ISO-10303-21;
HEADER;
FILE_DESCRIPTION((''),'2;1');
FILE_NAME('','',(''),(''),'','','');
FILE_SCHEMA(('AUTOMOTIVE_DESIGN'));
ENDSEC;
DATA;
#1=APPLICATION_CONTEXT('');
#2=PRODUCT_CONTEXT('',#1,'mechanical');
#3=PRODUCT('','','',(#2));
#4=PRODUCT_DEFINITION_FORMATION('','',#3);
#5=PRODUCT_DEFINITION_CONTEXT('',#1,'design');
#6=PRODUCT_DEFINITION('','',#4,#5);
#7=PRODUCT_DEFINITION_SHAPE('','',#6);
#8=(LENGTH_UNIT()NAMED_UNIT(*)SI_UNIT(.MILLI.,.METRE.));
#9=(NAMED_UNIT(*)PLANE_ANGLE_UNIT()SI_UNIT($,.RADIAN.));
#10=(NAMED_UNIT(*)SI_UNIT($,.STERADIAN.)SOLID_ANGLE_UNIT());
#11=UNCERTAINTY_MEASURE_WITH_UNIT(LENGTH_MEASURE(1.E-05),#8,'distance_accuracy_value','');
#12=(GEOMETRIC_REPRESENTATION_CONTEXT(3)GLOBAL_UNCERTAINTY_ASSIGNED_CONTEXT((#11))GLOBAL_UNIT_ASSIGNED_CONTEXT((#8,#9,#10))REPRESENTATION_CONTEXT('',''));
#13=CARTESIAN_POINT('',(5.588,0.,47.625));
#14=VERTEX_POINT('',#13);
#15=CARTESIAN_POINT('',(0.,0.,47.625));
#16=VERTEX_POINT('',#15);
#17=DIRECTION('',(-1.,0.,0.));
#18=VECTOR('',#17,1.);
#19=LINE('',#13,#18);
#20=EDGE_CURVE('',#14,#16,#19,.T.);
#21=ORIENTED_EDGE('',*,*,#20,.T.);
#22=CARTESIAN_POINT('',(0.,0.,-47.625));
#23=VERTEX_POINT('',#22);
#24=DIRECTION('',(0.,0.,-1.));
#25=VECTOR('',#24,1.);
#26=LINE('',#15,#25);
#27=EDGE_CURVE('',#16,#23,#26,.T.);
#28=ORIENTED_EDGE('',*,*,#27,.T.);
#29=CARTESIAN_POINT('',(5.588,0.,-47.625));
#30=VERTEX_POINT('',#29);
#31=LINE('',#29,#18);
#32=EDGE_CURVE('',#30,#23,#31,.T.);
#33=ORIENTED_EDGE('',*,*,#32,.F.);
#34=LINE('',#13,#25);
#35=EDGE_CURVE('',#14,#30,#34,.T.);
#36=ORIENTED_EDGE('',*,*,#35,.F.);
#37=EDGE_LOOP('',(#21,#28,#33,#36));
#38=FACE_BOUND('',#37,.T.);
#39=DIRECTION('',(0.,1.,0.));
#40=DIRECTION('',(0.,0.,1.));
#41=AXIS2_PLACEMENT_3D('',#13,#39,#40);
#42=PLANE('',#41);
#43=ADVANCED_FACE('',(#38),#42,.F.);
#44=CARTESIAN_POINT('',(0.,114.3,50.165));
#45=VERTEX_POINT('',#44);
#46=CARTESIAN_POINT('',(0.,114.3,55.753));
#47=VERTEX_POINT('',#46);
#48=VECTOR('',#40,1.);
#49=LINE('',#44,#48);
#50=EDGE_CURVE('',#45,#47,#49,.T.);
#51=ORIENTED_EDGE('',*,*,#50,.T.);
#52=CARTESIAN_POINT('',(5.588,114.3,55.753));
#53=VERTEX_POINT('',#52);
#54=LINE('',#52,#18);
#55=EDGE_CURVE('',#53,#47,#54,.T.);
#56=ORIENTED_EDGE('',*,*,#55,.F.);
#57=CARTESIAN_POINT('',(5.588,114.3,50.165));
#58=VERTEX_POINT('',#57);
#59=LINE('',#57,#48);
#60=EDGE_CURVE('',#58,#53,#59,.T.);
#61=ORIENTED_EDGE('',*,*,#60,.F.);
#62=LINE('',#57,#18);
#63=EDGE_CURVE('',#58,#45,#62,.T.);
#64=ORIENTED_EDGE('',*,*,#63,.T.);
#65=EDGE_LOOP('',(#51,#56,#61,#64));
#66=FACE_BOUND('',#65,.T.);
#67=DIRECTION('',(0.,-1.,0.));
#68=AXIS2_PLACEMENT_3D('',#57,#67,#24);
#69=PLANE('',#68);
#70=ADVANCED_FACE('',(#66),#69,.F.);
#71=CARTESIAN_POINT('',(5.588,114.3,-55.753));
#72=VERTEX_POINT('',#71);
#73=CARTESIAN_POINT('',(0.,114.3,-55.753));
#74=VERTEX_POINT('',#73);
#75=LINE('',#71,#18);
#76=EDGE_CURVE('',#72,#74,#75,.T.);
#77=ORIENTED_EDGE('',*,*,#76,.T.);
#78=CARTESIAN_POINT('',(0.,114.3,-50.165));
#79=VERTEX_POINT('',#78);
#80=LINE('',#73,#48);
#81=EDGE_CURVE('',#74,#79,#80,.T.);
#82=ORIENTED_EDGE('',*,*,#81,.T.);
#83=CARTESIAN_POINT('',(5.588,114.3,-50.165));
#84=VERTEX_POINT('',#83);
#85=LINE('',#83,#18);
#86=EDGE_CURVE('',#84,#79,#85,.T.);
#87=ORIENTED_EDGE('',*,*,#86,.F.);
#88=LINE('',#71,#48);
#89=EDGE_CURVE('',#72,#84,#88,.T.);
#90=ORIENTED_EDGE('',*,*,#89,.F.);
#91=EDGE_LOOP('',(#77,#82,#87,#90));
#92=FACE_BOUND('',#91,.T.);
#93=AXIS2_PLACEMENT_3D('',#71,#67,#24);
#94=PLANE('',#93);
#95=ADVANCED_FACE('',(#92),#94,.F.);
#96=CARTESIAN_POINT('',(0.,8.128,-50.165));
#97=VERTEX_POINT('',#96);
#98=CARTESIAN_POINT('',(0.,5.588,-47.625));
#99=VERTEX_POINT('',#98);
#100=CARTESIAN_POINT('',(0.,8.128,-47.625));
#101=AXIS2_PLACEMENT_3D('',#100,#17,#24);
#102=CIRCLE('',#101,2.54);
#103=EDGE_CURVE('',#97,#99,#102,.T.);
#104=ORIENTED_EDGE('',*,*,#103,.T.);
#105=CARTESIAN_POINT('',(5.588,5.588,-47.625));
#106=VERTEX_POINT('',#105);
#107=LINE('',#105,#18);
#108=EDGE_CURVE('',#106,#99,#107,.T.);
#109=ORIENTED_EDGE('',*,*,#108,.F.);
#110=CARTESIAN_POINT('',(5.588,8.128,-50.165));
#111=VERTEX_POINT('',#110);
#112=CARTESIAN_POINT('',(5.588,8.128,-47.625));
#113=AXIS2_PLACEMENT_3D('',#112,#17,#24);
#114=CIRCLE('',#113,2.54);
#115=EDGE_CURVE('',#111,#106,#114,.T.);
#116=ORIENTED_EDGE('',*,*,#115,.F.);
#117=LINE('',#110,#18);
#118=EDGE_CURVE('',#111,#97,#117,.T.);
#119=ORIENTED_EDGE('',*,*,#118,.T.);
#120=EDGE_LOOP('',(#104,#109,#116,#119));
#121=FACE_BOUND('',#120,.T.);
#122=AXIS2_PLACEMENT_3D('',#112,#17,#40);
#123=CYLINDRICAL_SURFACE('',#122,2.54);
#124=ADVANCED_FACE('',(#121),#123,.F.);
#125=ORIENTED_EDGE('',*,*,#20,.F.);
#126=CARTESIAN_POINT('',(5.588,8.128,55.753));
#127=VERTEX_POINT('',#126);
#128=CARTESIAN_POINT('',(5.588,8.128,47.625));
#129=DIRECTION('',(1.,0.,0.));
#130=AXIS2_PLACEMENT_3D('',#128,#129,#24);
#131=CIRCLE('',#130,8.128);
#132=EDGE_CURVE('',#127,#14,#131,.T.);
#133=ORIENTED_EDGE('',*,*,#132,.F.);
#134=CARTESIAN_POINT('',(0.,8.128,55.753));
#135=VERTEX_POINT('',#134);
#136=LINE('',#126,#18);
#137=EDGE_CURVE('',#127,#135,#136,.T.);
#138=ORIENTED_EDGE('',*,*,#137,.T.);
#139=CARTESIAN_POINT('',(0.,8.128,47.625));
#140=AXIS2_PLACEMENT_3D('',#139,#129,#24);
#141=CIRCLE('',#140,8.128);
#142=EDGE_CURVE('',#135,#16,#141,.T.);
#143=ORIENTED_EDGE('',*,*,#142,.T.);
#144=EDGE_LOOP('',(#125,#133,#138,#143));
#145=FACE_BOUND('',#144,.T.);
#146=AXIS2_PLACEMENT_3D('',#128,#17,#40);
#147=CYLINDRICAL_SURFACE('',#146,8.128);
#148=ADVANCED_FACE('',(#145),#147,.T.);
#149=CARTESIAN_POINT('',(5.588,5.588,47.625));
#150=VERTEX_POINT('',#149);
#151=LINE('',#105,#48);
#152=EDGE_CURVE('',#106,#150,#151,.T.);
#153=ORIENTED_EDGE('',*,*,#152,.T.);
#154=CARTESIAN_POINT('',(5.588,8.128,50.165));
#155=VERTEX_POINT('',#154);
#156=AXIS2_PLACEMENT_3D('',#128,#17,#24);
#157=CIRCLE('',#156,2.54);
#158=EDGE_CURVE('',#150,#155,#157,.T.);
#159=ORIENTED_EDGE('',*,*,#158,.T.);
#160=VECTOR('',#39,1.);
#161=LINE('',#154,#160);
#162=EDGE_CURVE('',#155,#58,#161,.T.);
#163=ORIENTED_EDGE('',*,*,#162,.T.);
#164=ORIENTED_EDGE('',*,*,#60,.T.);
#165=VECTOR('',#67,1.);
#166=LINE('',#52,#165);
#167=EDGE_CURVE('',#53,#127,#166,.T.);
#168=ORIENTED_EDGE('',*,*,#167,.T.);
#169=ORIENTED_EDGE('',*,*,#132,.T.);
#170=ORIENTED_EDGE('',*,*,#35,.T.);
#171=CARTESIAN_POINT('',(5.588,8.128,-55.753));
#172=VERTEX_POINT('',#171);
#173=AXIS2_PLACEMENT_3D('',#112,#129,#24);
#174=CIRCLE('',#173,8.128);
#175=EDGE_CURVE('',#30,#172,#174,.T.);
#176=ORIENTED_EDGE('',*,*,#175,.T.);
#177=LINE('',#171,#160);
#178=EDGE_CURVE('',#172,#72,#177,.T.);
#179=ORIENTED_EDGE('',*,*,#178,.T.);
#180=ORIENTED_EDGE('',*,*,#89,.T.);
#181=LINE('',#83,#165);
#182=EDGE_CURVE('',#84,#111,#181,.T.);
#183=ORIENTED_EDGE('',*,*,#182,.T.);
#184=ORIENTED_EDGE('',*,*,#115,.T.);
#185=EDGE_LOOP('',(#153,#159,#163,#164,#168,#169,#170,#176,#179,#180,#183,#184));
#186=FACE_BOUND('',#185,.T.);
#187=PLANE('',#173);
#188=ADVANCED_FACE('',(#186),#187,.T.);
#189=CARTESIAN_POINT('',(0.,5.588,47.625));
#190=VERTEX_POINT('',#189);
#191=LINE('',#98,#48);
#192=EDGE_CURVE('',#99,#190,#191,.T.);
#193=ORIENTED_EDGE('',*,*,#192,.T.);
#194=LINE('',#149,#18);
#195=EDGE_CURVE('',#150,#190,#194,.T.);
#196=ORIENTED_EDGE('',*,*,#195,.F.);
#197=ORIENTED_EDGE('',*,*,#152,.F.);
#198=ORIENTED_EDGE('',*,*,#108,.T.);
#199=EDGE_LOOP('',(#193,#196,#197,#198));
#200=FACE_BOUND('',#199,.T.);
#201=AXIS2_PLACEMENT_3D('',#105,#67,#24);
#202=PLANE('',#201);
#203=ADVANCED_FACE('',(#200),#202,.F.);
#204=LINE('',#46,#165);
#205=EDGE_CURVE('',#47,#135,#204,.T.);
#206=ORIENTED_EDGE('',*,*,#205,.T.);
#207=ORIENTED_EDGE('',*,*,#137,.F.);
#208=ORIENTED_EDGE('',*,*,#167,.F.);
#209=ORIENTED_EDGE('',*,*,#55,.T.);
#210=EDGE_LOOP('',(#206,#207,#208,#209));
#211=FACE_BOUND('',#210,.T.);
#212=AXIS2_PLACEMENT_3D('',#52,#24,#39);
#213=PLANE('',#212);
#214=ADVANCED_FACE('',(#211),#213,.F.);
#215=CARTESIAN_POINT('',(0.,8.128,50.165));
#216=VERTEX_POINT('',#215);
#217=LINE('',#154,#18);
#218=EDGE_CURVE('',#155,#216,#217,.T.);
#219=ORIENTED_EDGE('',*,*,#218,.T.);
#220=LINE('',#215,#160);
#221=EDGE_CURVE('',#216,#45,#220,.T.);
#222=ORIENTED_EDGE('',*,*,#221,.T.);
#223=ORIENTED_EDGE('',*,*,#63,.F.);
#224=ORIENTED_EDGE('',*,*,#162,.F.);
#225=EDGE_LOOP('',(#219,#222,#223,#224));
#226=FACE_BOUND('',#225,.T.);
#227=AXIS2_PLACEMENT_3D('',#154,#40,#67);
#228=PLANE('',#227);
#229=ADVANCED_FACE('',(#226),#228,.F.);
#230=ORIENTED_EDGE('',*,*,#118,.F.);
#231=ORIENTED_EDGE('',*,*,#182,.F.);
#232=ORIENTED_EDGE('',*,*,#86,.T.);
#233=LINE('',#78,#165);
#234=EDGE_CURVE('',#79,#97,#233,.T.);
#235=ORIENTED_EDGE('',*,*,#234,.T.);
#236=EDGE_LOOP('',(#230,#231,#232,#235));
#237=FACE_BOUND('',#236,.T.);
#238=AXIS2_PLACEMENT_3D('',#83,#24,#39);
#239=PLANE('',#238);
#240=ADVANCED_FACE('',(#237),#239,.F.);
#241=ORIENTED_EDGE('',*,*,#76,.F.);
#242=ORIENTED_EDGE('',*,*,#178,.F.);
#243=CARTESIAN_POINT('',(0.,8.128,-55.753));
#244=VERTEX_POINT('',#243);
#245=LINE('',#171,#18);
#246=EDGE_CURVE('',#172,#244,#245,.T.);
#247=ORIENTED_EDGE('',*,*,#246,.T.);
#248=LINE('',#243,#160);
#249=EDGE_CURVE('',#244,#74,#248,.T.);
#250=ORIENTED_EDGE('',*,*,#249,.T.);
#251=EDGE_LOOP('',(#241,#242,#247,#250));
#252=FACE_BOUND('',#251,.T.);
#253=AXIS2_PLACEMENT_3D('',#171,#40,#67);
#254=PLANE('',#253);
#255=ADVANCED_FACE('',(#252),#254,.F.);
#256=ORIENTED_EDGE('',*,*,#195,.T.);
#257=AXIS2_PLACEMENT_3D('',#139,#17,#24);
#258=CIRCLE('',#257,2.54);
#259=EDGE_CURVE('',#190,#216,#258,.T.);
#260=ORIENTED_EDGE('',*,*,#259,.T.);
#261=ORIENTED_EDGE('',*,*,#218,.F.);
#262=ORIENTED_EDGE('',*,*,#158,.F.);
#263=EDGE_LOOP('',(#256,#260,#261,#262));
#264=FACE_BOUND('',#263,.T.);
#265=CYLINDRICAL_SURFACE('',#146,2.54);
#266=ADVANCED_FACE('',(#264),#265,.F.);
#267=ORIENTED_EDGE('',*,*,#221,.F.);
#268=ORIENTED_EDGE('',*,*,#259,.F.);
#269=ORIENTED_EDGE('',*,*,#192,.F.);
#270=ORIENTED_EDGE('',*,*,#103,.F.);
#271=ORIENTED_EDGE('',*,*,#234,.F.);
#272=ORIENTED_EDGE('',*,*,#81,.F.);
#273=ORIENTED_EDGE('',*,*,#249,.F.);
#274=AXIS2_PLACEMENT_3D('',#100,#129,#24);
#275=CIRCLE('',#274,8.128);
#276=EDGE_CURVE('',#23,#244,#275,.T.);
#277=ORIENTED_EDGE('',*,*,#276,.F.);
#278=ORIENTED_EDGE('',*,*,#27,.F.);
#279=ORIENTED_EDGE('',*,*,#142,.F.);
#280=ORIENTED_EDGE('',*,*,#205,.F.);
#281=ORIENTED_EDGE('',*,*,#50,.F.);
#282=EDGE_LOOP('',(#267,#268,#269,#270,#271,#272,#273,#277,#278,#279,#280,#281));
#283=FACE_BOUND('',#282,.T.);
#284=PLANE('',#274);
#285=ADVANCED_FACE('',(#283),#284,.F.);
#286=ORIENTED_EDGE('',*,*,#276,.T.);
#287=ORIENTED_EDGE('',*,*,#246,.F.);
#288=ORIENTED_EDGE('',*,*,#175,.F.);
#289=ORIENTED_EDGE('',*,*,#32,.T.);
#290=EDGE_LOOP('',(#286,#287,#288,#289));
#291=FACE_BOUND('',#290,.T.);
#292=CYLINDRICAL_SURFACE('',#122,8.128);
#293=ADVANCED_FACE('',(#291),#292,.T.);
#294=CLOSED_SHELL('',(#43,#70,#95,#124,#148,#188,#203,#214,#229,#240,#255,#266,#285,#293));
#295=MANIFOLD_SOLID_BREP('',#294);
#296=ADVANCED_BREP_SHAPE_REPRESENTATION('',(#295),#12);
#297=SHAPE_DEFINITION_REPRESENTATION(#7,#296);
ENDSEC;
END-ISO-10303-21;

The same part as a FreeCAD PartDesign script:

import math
import FreeCAD as App
import Part
import Sketcher

V = App.Vector
Q = App.Units.Quantity

doc = App.newDocument("Part")
body = doc.addObject("PartDesign::Body", "Body")

# Sketch on YZ plane
sketch1 = doc.addObject("Sketcher::SketchObject", "Sketch")
body.addObject(sketch1)
sketch1.AttachmentSupport = (doc.YZ_Plane, [""])
sketch1.MapMode = "FlatFace"
sketch1.addGeometry(Part.LineSegment(V(0, 47.6, 0), V(0, -47.6, 0)), False)
sketch1.addGeometry(Part.ArcOfCircle(Part.Circle(V(8.1, -47.6, 0), V(0, 0, 1), 8.1), math.radians(-180), math.radians(-90)), False)
sketch1.addGeometry(Part.LineSegment(V(8.1, -55.8, 0), V(114.3, -55.8, 0)), False)
sketch1.addGeometry(Part.LineSegment(V(114.3, -55.8, 0), V(114.3, -50.2, 0)), False)
sketch1.addGeometry(Part.LineSegment(V(114.3, -50.2, 0), V(8.1, -50.2, 0)), False)
sketch1.addGeometry(Part.ArcOfCircle(Part.Circle(V(8.1, -47.6, 0), V(0, 0, 1), 2.5), math.radians(-180), math.radians(-90)), False)
sketch1.addGeometry(Part.LineSegment(V(5.6, -47.6, 0), V(5.6, 47.6, 0)), False)
sketch1.addGeometry(Part.ArcOfCircle(Part.Circle(V(8.1, 47.6, 0), V(0, 0, 1), 2.5), math.radians(90), math.radians(180)), False)
sketch1.addGeometry(Part.LineSegment(V(8.1, 50.2, 0), V(114.3, 50.2, 0)), False)
sketch1.addGeometry(Part.LineSegment(V(114.3, 50.2, 0), V(114.3, 55.8, 0)), False)
sketch1.addGeometry(Part.LineSegment(V(114.3, 55.8, 0), V(8.1, 55.8, 0)), False)
sketch1.addGeometry(Part.ArcOfCircle(Part.Circle(V(8.1, 47.6, 0), V(0, 0, 1), 8.1), math.radians(90), math.radians(180)), False)
sketch1.addConstraint(Sketcher.Constraint("Tangent", 0, 2, 1, 1))
sketch1.addConstraint(Sketcher.Constraint("Tangent", 1, 2, 2, 1))
sketch1.addConstraint(Sketcher.Constraint("Coincident", 2, 2, 3, 1))
sketch1.addConstraint(Sketcher.Constraint("Coincident", 3, 2, 4, 1))
sketch1.addConstraint(Sketcher.Constraint("Tangent", 4, 2, 5, 2))
sketch1.addConstraint(Sketcher.Constraint("Tangent", 5, 1, 6, 1))
sketch1.addConstraint(Sketcher.Constraint("Tangent", 6, 2, 7, 2))
sketch1.addConstraint(Sketcher.Constraint("Tangent", 7, 1, 8, 1))
sketch1.addConstraint(Sketcher.Constraint("Coincident", 8, 2, 9, 1))
sketch1.addConstraint(Sketcher.Constraint("Coincident", 9, 2, 10, 1))
sketch1.addConstraint(Sketcher.Constraint("Tangent", 10, 2, 11, 1))
sketch1.addConstraint(Sketcher.Constraint("Tangent", 11, 2, 0, 1))
sketch1.addConstraint(Sketcher.Constraint("Vertical", 0))
sketch1.addConstraint(Sketcher.Constraint("Horizontal", 2))
sketch1.addConstraint(Sketcher.Constraint("Vertical", 3))
sketch1.addConstraint(Sketcher.Constraint("Horizontal", 4))
sketch1.addConstraint(Sketcher.Constraint("Vertical", 6))
sketch1.addConstraint(Sketcher.Constraint("Horizontal", 8))
sketch1.addConstraint(Sketcher.Constraint("Vertical", 9))
sketch1.addConstraint(Sketcher.Constraint("Horizontal", 10))
sketch1.addConstraint(Sketcher.Constraint("Coincident", 5, 3, 1, 3))
sketch1.addConstraint(Sketcher.Constraint("Coincident", 11, 3, 7, 3))
sketch1.addConstraint(Sketcher.Constraint("Equal", 5, 7))
sketch1.addConstraint(Sketcher.Constraint("Symmetric", 0, 2, 11, 2, -1, 1))
sketch1.addConstraint(Sketcher.Constraint("Vertical", 3, 2, 8, 2))
sketch1.addConstraint(Sketcher.Constraint("Radius", 5, Q("0.1 in")))
sketch1.addConstraint(Sketcher.Constraint("Radius", 1, Q("0.32 in")))
sketch1.addConstraint(Sketcher.Constraint("DistanceX", 2, 1, 2, 2, Q("4.18 in")))
sketch1.addConstraint(Sketcher.Constraint("DistanceY", 0, 2, 0, 1, Q("3.75 in")))
pad1 = doc.addObject("PartDesign::Pad", "Pad")
body.addObject(pad1)
pad1.Profile = sketch1
pad1.Length = Q("0.22 in")

doc.recompute()
